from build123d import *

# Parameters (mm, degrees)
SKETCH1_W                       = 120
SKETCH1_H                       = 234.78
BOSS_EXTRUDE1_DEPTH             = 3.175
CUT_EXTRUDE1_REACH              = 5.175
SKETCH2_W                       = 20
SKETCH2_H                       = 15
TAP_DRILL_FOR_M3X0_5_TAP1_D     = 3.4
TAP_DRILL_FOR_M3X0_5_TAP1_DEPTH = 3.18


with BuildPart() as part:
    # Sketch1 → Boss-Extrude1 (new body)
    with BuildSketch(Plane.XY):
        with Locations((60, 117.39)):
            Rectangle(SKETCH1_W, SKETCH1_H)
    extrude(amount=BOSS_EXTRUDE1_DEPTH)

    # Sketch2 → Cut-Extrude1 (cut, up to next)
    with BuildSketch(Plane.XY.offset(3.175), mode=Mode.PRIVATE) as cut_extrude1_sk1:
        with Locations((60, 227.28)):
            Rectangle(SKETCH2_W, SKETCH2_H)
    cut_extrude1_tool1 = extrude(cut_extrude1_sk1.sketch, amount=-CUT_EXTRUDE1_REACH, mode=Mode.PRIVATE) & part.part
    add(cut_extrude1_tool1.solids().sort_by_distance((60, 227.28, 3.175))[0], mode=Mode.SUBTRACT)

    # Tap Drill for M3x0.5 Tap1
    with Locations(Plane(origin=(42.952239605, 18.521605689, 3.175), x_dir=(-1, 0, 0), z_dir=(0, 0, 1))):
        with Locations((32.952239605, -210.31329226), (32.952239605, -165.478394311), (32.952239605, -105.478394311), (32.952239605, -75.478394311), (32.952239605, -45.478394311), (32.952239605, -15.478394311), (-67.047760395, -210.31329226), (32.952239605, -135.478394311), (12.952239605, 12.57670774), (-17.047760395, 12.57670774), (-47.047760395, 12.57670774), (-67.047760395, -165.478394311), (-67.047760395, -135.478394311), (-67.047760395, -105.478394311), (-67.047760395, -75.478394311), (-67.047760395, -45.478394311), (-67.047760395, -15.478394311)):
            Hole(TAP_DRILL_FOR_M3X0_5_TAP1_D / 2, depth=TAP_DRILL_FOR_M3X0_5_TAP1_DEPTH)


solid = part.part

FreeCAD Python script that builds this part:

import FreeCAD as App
import Part
import Sketcher
from FreeCAD import Vector
Q = App.Units.Quantity


def add_polygon(sketch, points):
    """Adds a closed chain of lines whose ends are joined by coincident constraints."""
    first, n = sketch.GeometryCount, len(points)
    for a, b in zip(points, points[1:] + points[:1]):
        sketch.addGeometry(Part.LineSegment(App.Vector(*a, 0), App.Vector(*b, 0)), False)
    for i in range(n):
        sketch.addConstraint(Sketcher.Constraint("Coincident", first + i, 2, first + (i + 1) % n, 1))

doc = App.newDocument("Part")
body = doc.addObject("PartDesign::Body", "Body")

sketch1 = body.newObject("Sketcher::SketchObject", "Sketch")
sketch1.AttachmentSupport = (doc.getObject("XY_Plane"), [""])
sketch1.MapMode = "FlatFace"
add_polygon(sketch1, [(0, 235), (0, 0), (120, 0), (120, 235)])
sketch1.addConstraint([
    Sketcher.Constraint("Vertical", 0),
    Sketcher.Constraint("Horizontal", 1),
    Sketcher.Constraint("Vertical", 2),
    Sketcher.Constraint("Horizontal", 3),
    Sketcher.Constraint("Coincident", 0, 2, -1, 1),
    Sketcher.Constraint("DistanceX", 1, 1, 1, 2, Q("120 mm")),
    Sketcher.Constraint("DistanceY", 0, 2, 0, 1, Q("234.78 mm")),
])
pad1 = body.newObject("PartDesign::Pad", "Pad")
pad1.Profile = sketch1
pad1.Length = 3.175

sketch2 = body.newObject("Sketcher::SketchObject", "Sketch001")
sketch2.AttachmentSupport = (doc.getObject("XY_Plane"), [""])
sketch2.MapMode = "FlatFace"
sketch2.AttachmentOffset = App.Placement(Vector(0, 0, 3.175), App.Rotation())
add_polygon(sketch2, [(50, 235), (50, 220), (70, 220), (70, 235)])
sketch2.addConstraint([
    Sketcher.Constraint("Vertical", 0),
    Sketcher.Constraint("Horizontal", 1),
    Sketcher.Constraint("Vertical", 2),
    Sketcher.Constraint("Horizontal", 3),
    Sketcher.Constraint("DistanceX", 1, 1, 1, 2, Q("20 mm")),
    Sketcher.Constraint("DistanceY", 0, 2, 0, 1, Q("15 mm")),
    Sketcher.Constraint("DistanceX", -1, 1, 0, 2, Q("50 mm")),
    Sketcher.Constraint("DistanceY", -1, 1, 0, 2, Q("219.78 mm")),
])
pocket1 = body.newObject("PartDesign::Pocket", "Pocket")
pocket1.Profile = sketch2
pocket1.Type = "UpToFirst"

sketch3 = body.newObject("Sketcher::SketchObject", "Sketch002")
sketch3.AttachmentSupport = (doc.getObject("XY_Plane"), [""])
sketch3.MapMode = "FlatFace"
sketch3.AttachmentOffset = App.Placement(Vector(0, 0, 3.175), App.Rotation())
sketch3.addGeometry([
    Part.Circle(Vector(10, 228.8, 0), Vector(0, 0, 1), 1.7),
    Part.Circle(Vector(10, 184, 0), Vector(0, 0, 1), 1.7),
    Part.Circle(Vector(10, 124, 0), Vector(0, 0, 1), 1.7),
    Part.Circle(Vector(10, 94, 0), Vector(0, 0, 1), 1.7),
    Part.Circle(Vector(10, 64, 0), Vector(0, 0, 1), 1.7),
    Part.Circle(Vector(10, 34, 0), Vector(0, 0, 1), 1.7),
    Part.Circle(Vector(110, 228.8, 0), Vector(0, 0, 1), 1.7),
    Part.Circle(Vector(10, 154, 0), Vector(0, 0, 1), 1.7),
    Part.Circle(Vector(30, 5.9, 0), Vector(0, 0, 1), 1.7),
    Part.Circle(Vector(60, 5.9, 0), Vector(0, 0, 1), 1.7),
    Part.Circle(Vector(90, 5.9, 0), Vector(0, 0, 1), 1.7),
    Part.Circle(Vector(110, 184, 0), Vector(0, 0, 1), 1.7),
    Part.Circle(Vector(110, 154, 0), Vector(0, 0, 1), 1.7),
    Part.Circle(Vector(110, 124, 0), Vector(0, 0, 1), 1.7),
    Part.Circle(Vector(110, 94, 0), Vector(0, 0, 1), 1.7),
    Part.Circle(Vector(110, 64, 0), Vector(0, 0, 1), 1.7),
    Part.Circle(Vector(110, 34, 0), Vector(0, 0, 1), 1.7),
], False)
sketch3.addConstraint([
    Sketcher.Constraint("Equal", 0, 1),
    Sketcher.Constraint("Equal", 1, 2),
    Sketcher.Constraint("Equal", 2, 3),
    Sketcher.Constraint("Equal", 3, 4),
    Sketcher.Constraint("Equal", 4, 5),
    Sketcher.Constraint("Equal", 5, 6),
    Sketcher.Constraint("Equal", 6, 7),
    Sketcher.Constraint("Equal", 7, 8),
    Sketcher.Constraint("Equal", 8, 9),
    Sketcher.Constraint("Equal", 9, 10),
    Sketcher.Constraint("Equal", 10, 11),
    Sketcher.Constraint("Equal", 11, 12),
    Sketcher.Constraint("Equal", 12, 13),
    Sketcher.Constraint("Equal", 13, 14),
    Sketcher.Constraint("Equal", 14, 15),
    Sketcher.Constraint("Equal", 15, 16),
    Sketcher.Constraint("Horizontal", 0, 3, 6, 3),
    Sketcher.Constraint("Horizontal", 8, 3, 9, 3),
    Sketcher.Constraint("Horizontal", 9, 3, 10, 3),
    Sketcher.Constraint("Horizontal", 1, 3, 11, 3),
    Sketcher.Constraint("Horizontal", 7, 3, 12, 3),
    Sketcher.Constraint("Horizontal", 2, 3, 13, 3),
    Sketcher.Constraint("Horizontal", 3, 3, 14, 3),
    Sketcher.Constraint("Horizontal", 4, 3, 15, 3),
    Sketcher.Constraint("Horizontal", 5, 3, 16, 3),
    Sketcher.Constraint("Vertical", 0, 3, 1, 3),
    Sketcher.Constraint("Vertical", 1, 3, 2, 3),
    Sketcher.Constraint("Vertical", 2, 3, 3, 3),
    Sketcher.Constraint("Vertical", 3, 3, 4, 3),
    Sketcher.Constraint("Vertical", 4, 3, 5, 3),
    Sketcher.Constraint("Vertical", 5, 3, 7, 3),
    Sketcher.Constraint("Vertical", 6, 3, 11, 3),
    Sketcher.Constraint("Vertical", 11, 3, 12, 3),
    Sketcher.Constraint("Vertical", 12, 3, 13, 3),
    Sketcher.Constraint("Vertical", 13, 3, 14, 3),
    Sketcher.Constraint("Vertical", 14, 3, 15, 3),
    Sketcher.Constraint("Vertical", 15, 3, 16, 3),
    Sketcher.Constraint("Diameter", 0, Q("3.4 mm")),
    Sketcher.Constraint("DistanceX", -1, 1, 0, 3, Q("10 mm")),
    Sketcher.Constraint("DistanceY", -1, 1, 1, 3, Q("184 mm")),
    Sketcher.Constraint("DistanceY", -1, 1, 2, 3, Q("124 mm")),
    Sketcher.Constraint("DistanceY", -1, 1, 3, 3, Q("94 mm")),
    Sketcher.Constraint("DistanceY", -1, 1, 4, 3, Q("64 mm")),
    Sketcher.Constraint("DistanceY", -1, 1, 5, 3, Q("34 mm")),
    Sketcher.Constraint("DistanceX", -1, 1, 6, 3, Q("110 mm")),
    Sketcher.Constraint("DistanceY", -1, 1, 7, 3, Q("154 mm")),
    Sketcher.Constraint("DistanceX", -1, 1, 8, 3, Q("30 mm")),
    Sketcher.Constraint("DistanceX", -1, 1, 9, 3, Q("60 mm")),
    Sketcher.Constraint("DistanceX", -1, 1, 10, 3, Q("90 mm")),
    Sketcher.Constraint("DistanceY", -1, 1, 0, 3, Q("228.834898 mm")),
    Sketcher.Constraint("DistanceY", -1, 1, 8, 3, Q("5.944898 mm")),
])
doc.recompute()
hole = body.newObject("PartDesign::Hole", "Hole")
hole.Profile = sketch3
hole.ThreadType = "None"
hole.Diameter = 3.4
hole.DepthType = "Dimension"
hole.Depth = 3.18
hole.DrillPoint = "Flat"

doc.recompute()
